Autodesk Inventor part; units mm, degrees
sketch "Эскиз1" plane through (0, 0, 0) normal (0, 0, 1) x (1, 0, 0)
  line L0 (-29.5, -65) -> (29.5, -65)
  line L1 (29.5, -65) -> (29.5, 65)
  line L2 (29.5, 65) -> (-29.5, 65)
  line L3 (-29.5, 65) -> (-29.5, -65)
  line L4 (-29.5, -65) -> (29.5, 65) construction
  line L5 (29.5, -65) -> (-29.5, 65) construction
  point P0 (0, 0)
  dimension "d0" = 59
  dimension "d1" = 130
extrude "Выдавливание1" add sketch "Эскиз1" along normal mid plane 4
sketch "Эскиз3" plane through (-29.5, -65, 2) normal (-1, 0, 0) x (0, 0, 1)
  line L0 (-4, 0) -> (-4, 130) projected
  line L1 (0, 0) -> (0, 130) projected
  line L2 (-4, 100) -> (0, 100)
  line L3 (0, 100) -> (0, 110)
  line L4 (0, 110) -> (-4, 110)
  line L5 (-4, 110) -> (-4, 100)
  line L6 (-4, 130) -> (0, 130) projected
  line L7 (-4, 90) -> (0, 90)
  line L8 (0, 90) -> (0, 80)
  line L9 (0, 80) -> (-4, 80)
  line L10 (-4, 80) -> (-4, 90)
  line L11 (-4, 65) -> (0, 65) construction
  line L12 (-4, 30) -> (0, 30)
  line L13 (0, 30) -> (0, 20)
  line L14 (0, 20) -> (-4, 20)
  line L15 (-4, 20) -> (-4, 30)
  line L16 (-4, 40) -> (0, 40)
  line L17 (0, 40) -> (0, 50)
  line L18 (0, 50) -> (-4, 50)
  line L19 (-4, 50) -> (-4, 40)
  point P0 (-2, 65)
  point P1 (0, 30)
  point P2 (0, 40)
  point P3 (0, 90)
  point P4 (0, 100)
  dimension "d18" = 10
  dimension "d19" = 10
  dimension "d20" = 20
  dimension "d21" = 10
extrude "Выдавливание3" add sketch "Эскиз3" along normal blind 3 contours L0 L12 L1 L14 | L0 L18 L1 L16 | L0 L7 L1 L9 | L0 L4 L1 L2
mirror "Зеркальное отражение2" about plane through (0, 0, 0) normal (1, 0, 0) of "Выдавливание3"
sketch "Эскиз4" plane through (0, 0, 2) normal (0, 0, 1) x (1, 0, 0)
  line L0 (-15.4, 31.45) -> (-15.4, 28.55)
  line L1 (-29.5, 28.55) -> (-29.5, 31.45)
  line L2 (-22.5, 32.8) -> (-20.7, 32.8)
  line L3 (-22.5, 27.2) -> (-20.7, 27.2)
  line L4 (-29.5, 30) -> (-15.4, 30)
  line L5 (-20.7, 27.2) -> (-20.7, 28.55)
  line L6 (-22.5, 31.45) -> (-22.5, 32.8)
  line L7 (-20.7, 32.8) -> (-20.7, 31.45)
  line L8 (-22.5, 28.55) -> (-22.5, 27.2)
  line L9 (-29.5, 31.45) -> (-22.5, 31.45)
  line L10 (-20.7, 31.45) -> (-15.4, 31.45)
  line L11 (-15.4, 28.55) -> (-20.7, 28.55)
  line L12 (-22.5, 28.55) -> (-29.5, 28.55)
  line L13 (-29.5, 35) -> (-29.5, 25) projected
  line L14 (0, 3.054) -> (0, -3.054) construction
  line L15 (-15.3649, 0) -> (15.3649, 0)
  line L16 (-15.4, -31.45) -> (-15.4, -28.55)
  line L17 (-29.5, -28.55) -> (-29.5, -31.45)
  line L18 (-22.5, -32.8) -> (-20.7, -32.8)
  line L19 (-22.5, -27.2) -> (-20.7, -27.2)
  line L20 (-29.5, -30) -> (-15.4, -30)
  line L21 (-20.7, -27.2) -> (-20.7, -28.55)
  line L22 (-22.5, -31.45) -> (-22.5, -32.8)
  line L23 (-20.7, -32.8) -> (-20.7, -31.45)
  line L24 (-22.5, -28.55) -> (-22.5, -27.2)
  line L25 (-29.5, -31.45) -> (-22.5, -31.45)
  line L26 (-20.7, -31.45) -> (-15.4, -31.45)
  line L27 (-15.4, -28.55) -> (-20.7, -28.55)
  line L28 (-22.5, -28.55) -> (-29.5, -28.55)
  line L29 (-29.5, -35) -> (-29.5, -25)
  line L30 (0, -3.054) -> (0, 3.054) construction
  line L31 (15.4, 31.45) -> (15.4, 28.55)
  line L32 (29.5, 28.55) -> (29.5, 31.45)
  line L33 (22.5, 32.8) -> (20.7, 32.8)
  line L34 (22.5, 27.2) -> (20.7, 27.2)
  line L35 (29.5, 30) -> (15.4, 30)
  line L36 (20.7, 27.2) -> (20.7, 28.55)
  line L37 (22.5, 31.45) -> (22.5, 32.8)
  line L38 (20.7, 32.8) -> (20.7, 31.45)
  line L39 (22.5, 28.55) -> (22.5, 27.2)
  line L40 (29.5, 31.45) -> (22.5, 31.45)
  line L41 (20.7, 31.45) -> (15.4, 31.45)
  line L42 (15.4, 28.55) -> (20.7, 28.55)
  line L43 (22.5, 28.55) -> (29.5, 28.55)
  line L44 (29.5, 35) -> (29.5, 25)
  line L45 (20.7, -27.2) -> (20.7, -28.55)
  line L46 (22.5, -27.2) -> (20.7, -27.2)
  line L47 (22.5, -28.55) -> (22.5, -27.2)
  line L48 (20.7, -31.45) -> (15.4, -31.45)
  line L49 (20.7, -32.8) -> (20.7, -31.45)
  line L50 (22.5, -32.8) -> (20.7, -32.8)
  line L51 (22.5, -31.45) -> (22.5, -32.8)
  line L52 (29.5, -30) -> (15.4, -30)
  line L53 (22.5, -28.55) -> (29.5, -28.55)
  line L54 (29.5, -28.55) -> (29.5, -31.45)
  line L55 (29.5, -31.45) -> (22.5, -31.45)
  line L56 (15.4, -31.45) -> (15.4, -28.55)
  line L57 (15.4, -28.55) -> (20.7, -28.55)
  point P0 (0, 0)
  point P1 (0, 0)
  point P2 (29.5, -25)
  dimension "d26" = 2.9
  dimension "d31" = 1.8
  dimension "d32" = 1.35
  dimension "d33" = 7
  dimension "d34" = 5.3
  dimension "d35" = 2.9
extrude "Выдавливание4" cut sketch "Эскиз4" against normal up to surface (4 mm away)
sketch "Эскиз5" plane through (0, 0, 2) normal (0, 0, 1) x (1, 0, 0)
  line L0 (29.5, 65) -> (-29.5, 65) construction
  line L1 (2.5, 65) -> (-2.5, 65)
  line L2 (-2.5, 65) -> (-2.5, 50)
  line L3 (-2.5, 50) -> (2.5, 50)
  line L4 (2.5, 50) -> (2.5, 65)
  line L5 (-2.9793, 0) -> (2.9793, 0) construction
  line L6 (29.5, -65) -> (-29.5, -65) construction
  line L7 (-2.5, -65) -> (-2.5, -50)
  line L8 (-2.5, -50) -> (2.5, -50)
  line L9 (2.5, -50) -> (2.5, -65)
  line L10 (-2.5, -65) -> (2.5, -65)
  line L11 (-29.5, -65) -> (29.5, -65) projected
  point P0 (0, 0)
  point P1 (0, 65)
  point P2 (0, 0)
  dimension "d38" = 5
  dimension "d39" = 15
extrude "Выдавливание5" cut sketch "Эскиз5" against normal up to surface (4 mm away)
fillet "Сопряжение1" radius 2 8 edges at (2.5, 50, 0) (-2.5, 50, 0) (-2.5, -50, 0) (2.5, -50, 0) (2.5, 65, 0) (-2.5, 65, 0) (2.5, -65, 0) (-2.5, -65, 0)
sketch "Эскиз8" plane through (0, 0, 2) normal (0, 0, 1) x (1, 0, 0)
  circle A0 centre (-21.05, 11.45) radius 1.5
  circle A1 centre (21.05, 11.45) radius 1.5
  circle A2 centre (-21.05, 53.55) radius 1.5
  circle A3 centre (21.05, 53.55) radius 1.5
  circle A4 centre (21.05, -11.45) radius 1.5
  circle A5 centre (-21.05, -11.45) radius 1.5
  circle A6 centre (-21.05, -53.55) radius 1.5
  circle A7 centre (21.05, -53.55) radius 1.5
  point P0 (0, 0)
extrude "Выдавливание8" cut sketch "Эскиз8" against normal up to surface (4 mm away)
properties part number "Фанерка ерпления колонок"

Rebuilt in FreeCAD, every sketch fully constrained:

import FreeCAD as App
import Part
import Sketcher

V = App.Vector


def edges_at(feature, points):
    """Names of the edges that pass closest to the given points."""
    edges = feature.Shape.Edges
    near = lambda p: min(range(len(edges)), key=lambda i: edges[i].distToShape(Part.Vertex(*p))[0])
    return sorted({f"Edge{near(p) + 1}" for p in points})


def add_polygon(sketch, points):
    """Adds a closed chain of lines whose ends are joined by coincident constraints."""
    first, n = sketch.GeometryCount, len(points)
    for a, b in zip(points, points[1:] + points[:1]):
        sketch.addGeometry(Part.LineSegment(App.Vector(*a, 0), App.Vector(*b, 0)), False)
    for i in range(n):
        sketch.addConstraint(Sketcher.Constraint("Coincident", first + i, 2, first + (i + 1) % n, 1))

doc = App.newDocument("Part")
body = doc.addObject("PartDesign::Body", "Body")

sketch1 = body.newObject("Sketcher::SketchObject", "Sketch")
sketch1.AttachmentSupport = (doc.getObject("XY_Plane"), [""])
sketch1.MapMode = "FlatFace"
add_polygon(sketch1, [(-30, 65), (-30, -65), (30, -65), (30, 65)])
sketch1.addConstraint(Sketcher.Constraint("Vertical", 0))
sketch1.addConstraint(Sketcher.Constraint("Horizontal", 1))
sketch1.addConstraint(Sketcher.Constraint("Vertical", 2))
sketch1.addConstraint(Sketcher.Constraint("Horizontal", 3))
sketch1.addConstraint(Sketcher.Constraint("Symmetric", 0, 2, 2, 2, -1, 1))
sketch1.addConstraint(Sketcher.Constraint("DistanceX", 1, 1, 1, 2, 59.0))
sketch1.addConstraint(Sketcher.Constraint("DistanceY", 0, 2, 0, 1, 130.0))
pad1 = body.newObject("PartDesign::Pad", "Pad")
pad1.Profile = sketch1
pad1.Length = 4
pad1.Midplane = True

sketch2 = body.newObject("Sketcher::SketchObject", "Sketch001")
sketch2.AttachmentSupport = (doc.getObject("YZ_Plane"), [""])
sketch2.MapMode = "FlatFace"
sketch2.AttachmentOffset = App.Placement(V(0, 0, -29.5), App.Rotation())
add_polygon(sketch2, [(-35, -2), (-45, -2), (-45, 2), (-35, 2)])
add_polygon(sketch2, [(-15, -2), (-25, -2), (-25, 2), (-15, 2)])
add_polygon(sketch2, [(25, -2), (15, -2), (15, 2), (25, 2)])
add_polygon(sketch2, [(45, -2), (35, -2), (35, 2), (45, 2)])
sketch2.addConstraint(Sketcher.Constraint("Horizontal", 0))
sketch2.addConstraint(Sketcher.Constraint("Vertical", 1))
sketch2.addConstraint(Sketcher.Constraint("Horizontal", 2))
sketch2.addConstraint(Sketcher.Constraint("Vertical", 3))
sketch2.addConstraint(Sketcher.Constraint("Horizontal", 4))
sketch2.addConstraint(Sketcher.Constraint("Vertical", 5))
sketch2.addConstraint(Sketcher.Constraint("Horizontal", 6))
sketch2.addConstraint(Sketcher.Constraint("Vertical", 7))
sketch2.addConstraint(Sketcher.Constraint("Horizontal", 8))
sketch2.addConstraint(Sketcher.Constraint("Vertical", 9))
sketch2.addConstraint(Sketcher.Constraint("Horizontal", 10))
sketch2.addConstraint(Sketcher.Constraint("Vertical", 11))
sketch2.addConstraint(Sketcher.Constraint("Horizontal", 12))
sketch2.addConstraint(Sketcher.Constraint("Vertical", 13))
sketch2.addConstraint(Sketcher.Constraint("Horizontal", 14))
sketch2.addConstraint(Sketcher.Constraint("Vertical", 15))
sketch2.addConstraint(Sketcher.Constraint("Symmetric", 6, 2, 8, 2, -1, 1))
sketch2.addConstraint(Sketcher.Constraint("Symmetric", 4, 2, 10, 2, -1, 1))
sketch2.addConstraint(Sketcher.Constraint("Symmetric", 2, 2, 12, 2, -1, 1))
sketch2.addConstraint(Sketcher.Constraint("Symmetric", 0, 2, 14, 2, -1, 1))
sketch2.addConstraint(Sketcher.Constraint("Horizontal", 3, 2, 4, 2))
sketch2.addConstraint(Sketcher.Constraint("Horizontal", 2, 2, 5, 2))
sketch2.addConstraint(Sketcher.Constraint("Horizontal", 7, 2, 8, 2))
sketch2.addConstraint(Sketcher.Constraint("Equal", 2, 4))
sketch2.addConstraint(Sketcher.Constraint("DistanceX", 0, 2, 0, 1, 10.0))
sketch2.addConstraint(Sketcher.Constraint("DistanceX", 3, 2, 4, 2, 10.0))
sketch2.addConstraint(Sketcher.Constraint("DistanceY", 1, 1, 1, 2, 4.0))
sketch2.addConstraint(Sketcher.Constraint("DistanceX", 0, 2, -1, 1, 45.0))
pad2 = body.newObject("PartDesign::Pad", "Pad001")
pad2.Profile = sketch2
pad2.Length = 3
pad2.Reversed = True
doc.recompute()

mirrored = body.newObject("PartDesign::Mirrored", "Mirrored")
mirrored.Originals = [pad2]
mirrored.MirrorPlane = (doc.getObject("YZ_Plane"), [""])
body.Tip = mirrored

sketch3 = body.newObject("Sketcher::SketchObject", "Sketch002")
sketch3.AttachmentSupport = (doc.getObject("XY_Plane"), [""])
sketch3.MapMode = "FlatFace"
sketch3.AttachmentOffset = App.Placement(V(0, 0, 2), App.Rotation())
add_polygon(sketch3, [(-15.4, 31.4), (-20.7, 31.4), (-20.7, 32.8), (-22.5, 32.8), (-22.5, 31.4), (-29.5, 31.4), (-29.5, 28.6), (-22.5, 28.6), (-22.5, 27.2), (-20.7, 27.2), (-20.7, 28.6), (-15.4, 28.6)])
add_polygon(sketch3, [(-20.7, -31.4), (-15.4, -31.4), (-15.4, -28.6), (-20.7, -28.6), (-20.7, -27.2), (-22.5, -27.2), (-22.5, -28.6), (-29.5, -28.6), (-29.5, -31.4), (-22.5, -31.4), (-22.5, -32.8), (-20.7, -32.8)])
add_polygon(sketch3, [(20.7, 31.4), (15.4, 31.4), (15.4, 28.6), (20.7, 28.6), (20.7, 27.2), (22.5, 27.2), (22.5, 28.6), (29.5, 28.6), (29.5, 31.4), (22.5, 31.4), (22.5, 32.8), (20.7, 32.8)])
add_polygon(sketch3, [(22.5, -27.2), (20.7, -27.2), (20.7, -28.6), (15.4, -28.6), (15.4, -31.4), (20.7, -31.4), (20.7, -32.8), (22.5, -32.8), (22.5, -31.4), (29.5, -31.4), (29.5, -28.6), (22.5, -28.6)])
sketch3.addConstraint(Sketcher.Constraint("Horizontal", 0))
sketch3.addConstraint(Sketcher.Constraint("Vertical", 1))
sketch3.addConstraint(Sketcher.Constraint("Horizontal", 2))
sketch3.addConstraint(Sketcher.Constraint("Vertical", 3))
sketch3.addConstraint(Sketcher.Constraint("Horizontal", 4))
sketch3.addConstraint(Sketcher.Constraint("Vertical", 5))
sketch3.addConstraint(Sketcher.Constraint("Horizontal", 6))
sketch3.addConstraint(Sketcher.Constraint("Vertical", 7))
sketch3.addConstraint(Sketcher.Constraint("Horizontal", 8))
sketch3.addConstraint(Sketcher.Constraint("Vertical", 9))
sketch3.addConstraint(Sketcher.Constraint("Horizontal", 10))
sketch3.addConstraint(Sketcher.Constraint("Vertical", 11))
sketch3.addConstraint(Sketcher.Constraint("Horizontal", 12))
sketch3.addConstraint(Sketcher.Constraint("Vertical", 13))
sketch3.addConstraint(Sketcher.Constraint("Horizontal", 14))
sketch3.addConstraint(Sketcher.Constraint("Vertical", 15))
sketch3.addConstraint(Sketcher.Constraint("Horizontal", 16))
sketch3.addConstraint(Sketcher.Constraint("Vertical", 17))
sketch3.addConstraint(Sketcher.Constraint("Horizontal", 18))
sketch3.addConstraint(Sketcher.Constraint("Vertical", 19))
sketch3.addConstraint(Sketcher.Constraint("Horizontal", 20))
sketch3.addConstraint(Sketcher.Constraint("Vertical", 21))
sketch3.addConstraint(Sketcher.Constraint("Horizontal", 22))
sketch3.addConstraint(Sketcher.Constraint("Vertical", 23))
sketch3.addConstraint(Sketcher.Constraint("Horizontal", 24))
sketch3.addConstraint(Sketcher.Constraint("Vertical", 25))
sketch3.addConstraint(Sketcher.Constraint("Horizontal", 26))
sketch3.addConstraint(Sketcher.Constraint("Vertical", 27))
sketch3.addConstraint(Sketcher.Constraint("Horizontal", 28))
sketch3.addConstraint(Sketcher.Constraint("Vertical", 29))
sketch3.addConstraint(Sketcher.Constraint("Horizontal", 30))
sketch3.addConstraint(Sketcher.Constraint("Vertical", 31))
sketch3.addConstraint(Sketcher.Constraint("Horizontal", 32))
sketch3.addConstraint(Sketcher.Constraint("Vertical", 33))
sketch3.addConstraint(Sketcher.Constraint("Horizontal", 34))
sketch3.addConstraint(Sketcher.Constraint("Vertical", 35))
sketch3.addConstraint(Sketcher.Constraint("Horizontal", 36))
sketch3.addConstraint(Sketcher.Constraint("Vertical", 37))
sketch3.addConstraint(Sketcher.Constraint("Horizontal", 38))
sketch3.addConstraint(Sketcher.Constraint("Vertical", 39))
sketch3.addConstraint(Sketcher.Constraint("Horizontal", 40))
sketch3.addConstraint(Sketcher.Constraint("Vertical", 41))
sketch3.addConstraint(Sketcher.Constraint("Horizontal", 42))
sketch3.addConstraint(Sketcher.Constraint("Vertical", 43))
sketch3.addConstraint(Sketcher.Constraint("Horizontal", 44))
sketch3.addConstraint(Sketcher.Constraint("Vertical", 45))
sketch3.addConstraint(Sketcher.Constraint("Horizontal", 46))
sketch3.addConstraint(Sketcher.Constraint("Vertical", 47))
sketch3.addConstraint(Sketcher.Constraint("Symmetric", 12, 2, 24, 2, -1, 1))
sketch3.addConstraint(Sketcher.Constraint("Symmetric", 14, 2, 26, 2, -1, 1))
sketch3.addConstraint(Sketcher.Constraint("Symmetric", 16, 2, 28, 2, -1, 1))
sketch3.addConstraint(Sketcher.Constraint("Symmetric", 18, 2, 30, 2, -1, 1))
sketch3.addConstraint(Sketcher.Constraint("Symmetric", 20, 2, 32, 2, -1, 1))
sketch3.addConstraint(Sketcher.Constraint("Symmetric", 22, 2, 34, 2, -1, 1))
sketch3.addConstraint(Sketcher.Constraint("Symmetric", 8, 2, 36, 2, -1, 1))
sketch3.addConstraint(Sketcher.Constraint("Symmetric", 10, 2, 38, 2, -1, 1))
sketch3.addConstraint(Sketcher.Constraint("Symmetric", 0, 2, 40, 2, -1, 1))
sketch3.addConstraint(Sketcher.Constraint("Symmetric", 2, 2, 42, 2, -1, 1))
sketch3.addConstraint(Sketcher.Constraint("Symmetric", 4, 2, 44, 2, -1, 1))
sketch3.addConstraint(Sketcher.Constraint("Symmetric", 6, 2, 46, 2, -1, 1))
sketch3.addConstraint(Sketcher.Constraint("Symmetric", 11, 2, 24, 2, -2))
sketch3.addConstraint(Sketcher.Constraint("Symmetric", 9, 2, 26, 2, -2))
sketch3.addConstraint(Sketcher.Constraint("Symmetric", 7, 2, 28, 2, -2))
sketch3.addConstraint(Sketcher.Constraint("Symmetric", 5, 2, 30, 2, -2))
sketch3.addConstraint(Sketcher.Constraint("Symmetric", 3, 2, 32, 2, -2))
sketch3.addConstraint(Sketcher.Constraint("Symmetric", 1, 2, 34, 2, -2))
sketch3.addConstraint(Sketcher.Constraint("Horizontal", 0, 2, 3, 2))
sketch3.addConstraint(Sketcher.Constraint("Horizontal", 6, 2, 9, 2))
sketch3.addConstraint(Sketcher.Constraint("Vertical", 3, 2, 6, 2))
sketch3.addConstraint(Sketcher.Constraint("Vertical", 1, 2, 8, 2))
sketch3.addConstraint(Sketcher.Constraint("Equal", 3, 7))
sketch3.addConstraint(Sketcher.Constraint("DistanceX", 4, 2, 4, 1, 7.0))
sketch3.addConstraint(Sketcher.Constraint("DistanceX", 0, 2, 0, 1, 5.3))
sketch3.addConstraint(Sketcher.Constraint("DistanceX", 2, 2, 2, 1, 1.8))
sketch3.addConstraint(Sketcher.Constraint("DistanceY", 5, 2, 5, 1, 2.9))
sketch3.addConstraint(Sketcher.Constraint("DistanceY", 1, 1, 1, 2, 1.35))
sketch3.addConstraint(Sketcher.Constraint("DistanceY", 12, 2, 10, 2, 60.0))
sketch3.addConstraint(Sketcher.Constraint("DistanceX", 0, 2, -1, 1, 20.7))
pocket1 = body.newObject("PartDesign::Pocket", "Pocket")
pocket1.Profile = sketch3
pocket1.Length = 4

sketch4 = body.newObject("Sketcher::SketchObject", "Sketch003")
sketch4.AttachmentSupport = (doc.getObject("XY_Plane"), [""])
sketch4.MapMode = "FlatFace"
sketch4.AttachmentOffset = App.Placement(V(0, 0, 2), App.Rotation())
add_polygon(sketch4, [(2, 50), (2, 65), (-2, 65), (-2, 50)])
add_polygon(sketch4, [(-2, -50), (-2, -65), (2, -65), (2, -50)])
sketch4.addConstraint(Sketcher.Constraint("Vertical", 0))
sketch4.addConstraint(Sketcher.Constraint("Horizontal", 1))
sketch4.addConstraint(Sketcher.Constraint("Vertical", 2))
sketch4.addConstraint(Sketcher.Constraint("Horizontal", 3))
sketch4.addConstraint(Sketcher.Constraint("Vertical", 4))
sketch4.addConstraint(Sketcher.Constraint("Horizontal", 5))
sketch4.addConstraint(Sketcher.Constraint("Vertical", 6))
sketch4.addConstraint(Sketcher.Constraint("Horizontal", 7))
sketch4.addConstraint(Sketcher.Constraint("Symmetric", 0, 2, 4, 2, -1, 1))
sketch4.addConstraint(Sketcher.Constraint("Symmetric", 2, 2, 6, 2, -1, 1))
sketch4.addConstraint(Sketcher.Constraint("Vertical", 2, 2, 4, 2))
sketch4.addConstraint(Sketcher.Constraint("DistanceX", 1, 2, 1, 1, 5.0))
sketch4.addConstraint(Sketcher.Constraint("DistanceY", 0, 1, 0, 2, 15.0))
sketch4.addConstraint(Sketcher.Constraint("DistanceY", -1, 1, 0, 2, 65.0))
pocket2 = body.newObject("PartDesign::Pocket", "Pocket001")
pocket2.Profile = sketch4
pocket2.Length = 4
doc.recompute()

fillet = body.newObject("PartDesign::Fillet", "Fillet")
fillet.Base = (pocket2, edges_at(pocket2, [
    (2.5, 50, 0),
    (-2.5, 50, 0),
    (-2.5, -50, 0),
    (2.5, -50, 0),
    (2.5, 65, 0),
    (-2.5, 65, 0),
    (2.5, -65, 0),
    (-2.5, -65, 0),
]))
fillet.Radius = 2

sketch5 = body.newObject("Sketcher::SketchObject", "Sketch004")
sketch5.AttachmentSupport = (doc.getObject("XY_Plane"), [""])
sketch5.MapMode = "FlatFace"
sketch5.AttachmentOffset = App.Placement(V(0, 0, 2), App.Rotation())
sketch5.addGeometry(Part.Circle(V(-21.1, 11.4, 0), V(0, 0, 1), 1.5), False)
sketch5.addGeometry(Part.Circle(V(21.1, 11.4, 0), V(0, 0, 1), 1.5), False)
sketch5.addGeometry(Part.Circle(V(-21.1, 53.5, 0), V(0, 0, 1), 1.5), False)
sketch5.addGeometry(Part.Circle(V(21.1, 53.5, 0), V(0, 0, 1), 1.5), False)
sketch5.addGeometry(Part.Circle(V(21.1, -11.4, 0), V(0, 0, 1), 1.5), False)
sketch5.addGeometry(Part.Circle(V(-21.1, -11.4, 0), V(0, 0, 1), 1.5), False)
sketch5.addGeometry(Part.Circle(V(-21.1, -53.5, 0), V(0, 0, 1), 1.5), False)
sketch5.addGeometry(Part.Circle(V(21.1, -53.5, 0), V(0, 0, 1), 1.5), False)
sketch5.addConstraint(Sketcher.Constraint("Equal", 0, 1))
sketch5.addConstraint(Sketcher.Constraint("Equal", 1, 2))
sketch5.addConstraint(Sketcher.Constraint("Equal", 2, 3))
sketch5.addConstraint(Sketcher.Constraint("Equal", 3, 4))
sketch5.addConstraint(Sketcher.Constraint("Equal", 4, 5))
sketch5.addConstraint(Sketcher.Constraint("Equal", 5, 6))
sketch5.addConstraint(Sketcher.Constraint("Equal", 6, 7))
sketch5.addConstraint(Sketcher.Constraint("Symmetric", 0, 3, 4, 3, -1, 1))
sketch5.addConstraint(Sketcher.Constraint("Symmetric", 1, 3, 5, 3, -1, 1))
sketch5.addConstraint(Sketcher.Constraint("Symmetric", 3, 3, 6, 3, -1, 1))
sketch5.addConstraint(Sketcher.Constraint("Symmetric", 2, 3, 7, 3, -1, 1))
sketch5.addConstraint(Sketcher.Constraint("Symmetric", 0, 3, 1, 3, -2))
sketch5.addConstraint(Sketcher.Constraint("Symmetric", 2, 3, 3, 3, -2))
sketch5.addConstraint(Sketcher.Constraint("Vertical", 0, 3, 2, 3))
sketch5.addConstraint(Sketcher.Constraint("Diameter", 0, 3.0))
sketch5.addConstraint(Sketcher.Constraint("DistanceY", 4, 3, 3, 3, 65.0))
sketch5.addConstraint(Sketcher.Constraint("DistanceX", 0, 3, 1, 3, 42.1))
sketch5.addConstraint(Sketcher.Constraint("DistanceY", 0, 3, 2, 3, 42.1))
pocket3 = body.newObject("PartDesign::Pocket", "Pocket002")
pocket3.Profile = sketch5
pocket3.Length = 4

doc.recompute()
